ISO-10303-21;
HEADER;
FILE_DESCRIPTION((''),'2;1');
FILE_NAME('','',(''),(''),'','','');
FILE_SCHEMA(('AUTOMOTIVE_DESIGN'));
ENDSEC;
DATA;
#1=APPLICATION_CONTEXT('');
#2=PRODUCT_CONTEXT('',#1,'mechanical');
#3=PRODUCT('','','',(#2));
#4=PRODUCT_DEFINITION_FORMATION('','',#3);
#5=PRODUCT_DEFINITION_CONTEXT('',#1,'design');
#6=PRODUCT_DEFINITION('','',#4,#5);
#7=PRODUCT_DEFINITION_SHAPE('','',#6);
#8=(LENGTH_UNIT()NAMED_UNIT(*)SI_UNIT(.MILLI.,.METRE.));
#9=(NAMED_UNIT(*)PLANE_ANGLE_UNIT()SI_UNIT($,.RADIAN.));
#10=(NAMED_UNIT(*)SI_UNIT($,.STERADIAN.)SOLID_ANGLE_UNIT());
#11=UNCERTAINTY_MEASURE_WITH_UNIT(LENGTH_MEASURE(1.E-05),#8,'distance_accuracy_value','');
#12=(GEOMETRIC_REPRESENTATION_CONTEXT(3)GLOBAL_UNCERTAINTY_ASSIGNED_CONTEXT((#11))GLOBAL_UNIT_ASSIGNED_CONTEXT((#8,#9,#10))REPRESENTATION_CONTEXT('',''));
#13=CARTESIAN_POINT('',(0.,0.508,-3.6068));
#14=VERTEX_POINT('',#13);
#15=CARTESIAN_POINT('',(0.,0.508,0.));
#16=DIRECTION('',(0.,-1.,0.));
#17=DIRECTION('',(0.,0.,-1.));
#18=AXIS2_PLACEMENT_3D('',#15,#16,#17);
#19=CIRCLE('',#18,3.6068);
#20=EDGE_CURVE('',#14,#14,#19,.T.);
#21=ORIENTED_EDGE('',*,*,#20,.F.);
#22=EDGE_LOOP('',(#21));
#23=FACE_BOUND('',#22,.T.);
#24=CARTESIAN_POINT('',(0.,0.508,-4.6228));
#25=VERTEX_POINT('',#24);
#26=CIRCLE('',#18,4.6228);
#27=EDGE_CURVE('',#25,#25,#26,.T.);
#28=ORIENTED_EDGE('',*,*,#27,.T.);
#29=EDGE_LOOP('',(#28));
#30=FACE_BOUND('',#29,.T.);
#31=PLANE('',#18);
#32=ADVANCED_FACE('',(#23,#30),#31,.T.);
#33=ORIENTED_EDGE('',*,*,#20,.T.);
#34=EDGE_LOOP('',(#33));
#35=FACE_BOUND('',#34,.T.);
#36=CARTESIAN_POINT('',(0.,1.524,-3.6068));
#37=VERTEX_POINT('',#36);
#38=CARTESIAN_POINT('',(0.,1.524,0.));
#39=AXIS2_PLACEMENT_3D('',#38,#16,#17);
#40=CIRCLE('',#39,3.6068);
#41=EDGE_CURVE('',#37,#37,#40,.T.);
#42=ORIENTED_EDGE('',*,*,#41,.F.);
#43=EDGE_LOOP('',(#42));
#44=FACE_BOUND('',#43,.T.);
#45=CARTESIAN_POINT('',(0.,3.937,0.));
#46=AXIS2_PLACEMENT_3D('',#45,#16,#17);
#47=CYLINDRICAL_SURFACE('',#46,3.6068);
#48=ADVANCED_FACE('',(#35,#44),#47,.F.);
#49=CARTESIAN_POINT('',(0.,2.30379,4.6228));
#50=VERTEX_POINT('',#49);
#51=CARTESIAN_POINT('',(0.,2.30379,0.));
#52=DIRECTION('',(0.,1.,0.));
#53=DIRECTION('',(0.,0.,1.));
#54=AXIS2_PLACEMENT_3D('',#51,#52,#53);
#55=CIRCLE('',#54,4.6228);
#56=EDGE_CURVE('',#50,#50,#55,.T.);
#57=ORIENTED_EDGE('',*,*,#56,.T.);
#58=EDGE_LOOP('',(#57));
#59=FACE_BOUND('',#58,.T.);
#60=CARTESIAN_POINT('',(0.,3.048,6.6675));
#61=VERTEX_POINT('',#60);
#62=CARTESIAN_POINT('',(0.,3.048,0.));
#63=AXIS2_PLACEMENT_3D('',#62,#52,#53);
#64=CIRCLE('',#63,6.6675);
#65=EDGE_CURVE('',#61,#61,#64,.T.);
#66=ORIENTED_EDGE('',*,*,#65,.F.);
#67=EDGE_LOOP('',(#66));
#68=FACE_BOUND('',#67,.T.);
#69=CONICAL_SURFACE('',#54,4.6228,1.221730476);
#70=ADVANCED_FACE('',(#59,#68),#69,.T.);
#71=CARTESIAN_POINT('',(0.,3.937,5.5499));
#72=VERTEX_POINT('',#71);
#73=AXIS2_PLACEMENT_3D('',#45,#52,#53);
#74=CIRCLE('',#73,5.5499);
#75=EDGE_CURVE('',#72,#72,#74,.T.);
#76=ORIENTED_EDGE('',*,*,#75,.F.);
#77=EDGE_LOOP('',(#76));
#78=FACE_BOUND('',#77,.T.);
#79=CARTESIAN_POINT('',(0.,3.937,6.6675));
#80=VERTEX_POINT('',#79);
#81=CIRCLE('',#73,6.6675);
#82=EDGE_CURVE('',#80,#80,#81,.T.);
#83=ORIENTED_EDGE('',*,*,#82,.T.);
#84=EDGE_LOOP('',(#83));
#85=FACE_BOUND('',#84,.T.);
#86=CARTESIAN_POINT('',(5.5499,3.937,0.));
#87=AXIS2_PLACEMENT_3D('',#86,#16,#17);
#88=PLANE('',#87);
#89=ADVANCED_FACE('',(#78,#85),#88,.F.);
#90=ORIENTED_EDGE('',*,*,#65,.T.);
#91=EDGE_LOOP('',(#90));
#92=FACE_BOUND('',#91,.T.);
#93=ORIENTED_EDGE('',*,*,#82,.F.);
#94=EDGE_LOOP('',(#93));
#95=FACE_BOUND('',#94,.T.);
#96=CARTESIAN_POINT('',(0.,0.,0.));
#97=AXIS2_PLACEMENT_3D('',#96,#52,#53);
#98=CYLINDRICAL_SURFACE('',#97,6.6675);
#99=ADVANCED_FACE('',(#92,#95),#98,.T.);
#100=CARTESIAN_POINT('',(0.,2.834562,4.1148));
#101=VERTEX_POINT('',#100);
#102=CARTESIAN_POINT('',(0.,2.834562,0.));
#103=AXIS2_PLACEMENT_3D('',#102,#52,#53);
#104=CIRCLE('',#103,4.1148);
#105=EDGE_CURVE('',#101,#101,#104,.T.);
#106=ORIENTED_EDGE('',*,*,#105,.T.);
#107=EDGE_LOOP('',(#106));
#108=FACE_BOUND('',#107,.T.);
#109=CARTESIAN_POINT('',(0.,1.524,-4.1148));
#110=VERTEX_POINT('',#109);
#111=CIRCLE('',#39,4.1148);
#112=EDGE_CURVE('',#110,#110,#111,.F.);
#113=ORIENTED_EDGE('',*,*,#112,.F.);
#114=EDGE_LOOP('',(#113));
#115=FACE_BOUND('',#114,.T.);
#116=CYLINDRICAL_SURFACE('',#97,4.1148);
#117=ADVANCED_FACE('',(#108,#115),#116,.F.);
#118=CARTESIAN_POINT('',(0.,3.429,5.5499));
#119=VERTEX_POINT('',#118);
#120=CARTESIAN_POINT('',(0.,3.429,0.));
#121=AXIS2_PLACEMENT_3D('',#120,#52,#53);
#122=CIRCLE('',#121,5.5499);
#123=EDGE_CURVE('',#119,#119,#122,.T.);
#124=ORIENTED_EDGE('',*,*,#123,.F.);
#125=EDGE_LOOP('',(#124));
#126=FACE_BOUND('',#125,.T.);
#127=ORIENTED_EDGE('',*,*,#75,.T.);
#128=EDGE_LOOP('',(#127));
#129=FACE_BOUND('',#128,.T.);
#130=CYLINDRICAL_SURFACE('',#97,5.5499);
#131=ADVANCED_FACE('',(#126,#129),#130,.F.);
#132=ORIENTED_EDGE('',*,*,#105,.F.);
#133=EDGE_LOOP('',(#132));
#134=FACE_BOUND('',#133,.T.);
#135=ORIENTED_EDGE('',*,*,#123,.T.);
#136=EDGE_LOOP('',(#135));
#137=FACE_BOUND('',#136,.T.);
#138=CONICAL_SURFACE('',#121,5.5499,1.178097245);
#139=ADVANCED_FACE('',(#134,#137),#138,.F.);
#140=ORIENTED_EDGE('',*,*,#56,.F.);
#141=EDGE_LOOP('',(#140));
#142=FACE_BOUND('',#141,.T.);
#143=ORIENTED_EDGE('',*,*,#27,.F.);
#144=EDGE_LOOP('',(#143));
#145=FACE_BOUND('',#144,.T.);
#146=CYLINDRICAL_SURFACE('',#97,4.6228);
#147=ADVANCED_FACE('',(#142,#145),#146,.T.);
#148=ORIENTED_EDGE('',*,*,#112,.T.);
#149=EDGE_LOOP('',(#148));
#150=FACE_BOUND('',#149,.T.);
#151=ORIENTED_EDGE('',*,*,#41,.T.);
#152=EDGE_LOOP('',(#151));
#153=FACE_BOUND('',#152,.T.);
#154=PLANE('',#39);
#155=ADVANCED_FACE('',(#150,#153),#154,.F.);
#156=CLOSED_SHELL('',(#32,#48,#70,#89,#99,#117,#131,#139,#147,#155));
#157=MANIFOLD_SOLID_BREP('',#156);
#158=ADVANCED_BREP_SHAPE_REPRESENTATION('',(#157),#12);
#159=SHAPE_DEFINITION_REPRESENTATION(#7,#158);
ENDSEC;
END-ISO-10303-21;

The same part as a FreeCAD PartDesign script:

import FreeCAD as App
import Part
import Sketcher
from FreeCAD import Vector
Q = App.Units.Quantity


def add_polygon(sketch, points):
    """Adds a closed chain of lines whose ends are joined by coincident constraints."""
    first, n = sketch.GeometryCount, len(points)
    for a, b in zip(points, points[1:] + points[:1]):
        sketch.addGeometry(Part.LineSegment(App.Vector(*a, 0), App.Vector(*b, 0)), False)
    for i in range(n):
        sketch.addConstraint(Sketcher.Constraint("Coincident", first + i, 2, first + (i + 1) % n, 1))

doc = App.newDocument("Part")
body = doc.addObject("PartDesign::Body", "Body")

# Sketch on XY plane
sketch1 = doc.addObject("Sketcher::SketchObject", "Sketch")
body.addObject(sketch1)
sketch1.AttachmentSupport = (doc.XY_Plane, [""])
sketch1.MapMode = "FlatFace"
add_polygon(sketch1, [(4.6, 0), (4.6, 2.3), (6.7, 3), (6.7, 3.9), (5.5, 3.9), (5.5, 3.4), (4.1, 2.8), (4.1, 0)])  # lines 0-7
sketch1.addConstraint([
    Sketcher.Constraint("Vertical", 0),
    Sketcher.Constraint("Vertical", 2),
    Sketcher.Constraint("Horizontal", 3),
    Sketcher.Constraint("Vertical", 4),
    Sketcher.Constraint("Vertical", 6),
    Sketcher.Constraint("Horizontal", 7),
    Sketcher.Constraint("PointOnObject", 6, 2, -1),
    Sketcher.Constraint("Equal", 7, 4),
    Sketcher.Constraint("Angle", 1, Q("20 deg")),
    Sketcher.Constraint("DistanceX", 7, 1, 7, 2, Q("0.02 in")),
    Sketcher.Constraint("Angle", 5, Q("-157.5 deg")),
    Sketcher.Constraint("DistanceX", 3, 2, 3, 1, Q("0.044 in")),
    Sketcher.Constraint("DistanceY", 2, 1, 2, 2, Q("0.035 in")),
    Sketcher.Constraint("DistanceY", -1, 1, 1, 2, Q("0.12 in")),
    Sketcher.Constraint("DistanceX", -1, 1, 0, 2, Q("0.182 in")),
    Sketcher.Constraint("DistanceX", -1, 1, 1, 2, Q("0.2625 in")),
])
revolution = doc.addObject("PartDesign::Revolution", "Revolution")
body.addObject(revolution)
revolution.Profile = sketch1
revolution.ReferenceAxis = (sketch1, ["V_Axis"])
revolution.Angle = 360

# Sketch on XZ plane
sketch2 = doc.addObject("Sketcher::SketchObject", "Sketch001")
body.addObject(sketch2)
sketch2.AttachmentSupport = (doc.XZ_Plane, [""])
sketch2.MapMode = "FlatFace"
sketch2.addGeometry([
    Part.Circle(Vector(0, 0, 0), Vector(0, 0, 1), 4.6),
    Part.Circle(Vector(0, 0, 0), Vector(0, 0, 1), 4.1),
], False)
sketch2.addConstraint([
    Sketcher.Constraint("Coincident", 0, 3, -1, 1),
    Sketcher.Constraint("Coincident", 1, 3, -1, 1),
    Sketcher.Constraint("Diameter", 0, Q("0.364 in")),
    Sketcher.Constraint("Diameter", 1, Q("0.324 in")),
])
pocket1 = doc.addObject("PartDesign::Pocket", "Pocket")
body.addObject(pocket1)
pocket1.Profile = sketch2
pocket1.Length = Q("0.02 in")

# Sketch on XZ plane
sketch3 = doc.addObject("Sketcher::SketchObject", "Sketch002")
body.addObject(sketch3)
sketch3.AttachmentSupport = (doc.XZ_Plane, [""])
sketch3.MapMode = "FlatFace"
sketch3.AttachmentOffset = App.Placement(Vector(0, 0, -0.02 * 25.4), App.Rotation())
sketch3.addGeometry(Part.Circle(Vector(0, 0, 0), Vector(0, 0, 1), 4.1), False)
sketch3.addConstraint([
    Sketcher.Constraint("Coincident", 0, 3, -1, 1),
    Sketcher.Constraint("Diameter", 0, Q("0.324 in")),
])
pad1 = doc.addObject("PartDesign::Pad", "Pad")
body.addObject(pad1)
pad1.Profile = sketch3
pad1.Length = Q("0.04 in")
pad1.Reversed = True

# Sketch on XZ plane
sketch4 = doc.addObject("Sketcher::SketchObject", "Sketch003")
body.addObject(sketch4)
sketch4.AttachmentSupport = (doc.XZ_Plane, [""])
sketch4.MapMode = "FlatFace"
sketch4.AttachmentOffset = App.Placement(Vector(0, 0, -0.02 * 25.4), App.Rotation())
sketch4.addGeometry(Part.Circle(Vector(0, 0, 0), Vector(0, 0, 1), 3.6), False)
sketch4.addConstraint([
    Sketcher.Constraint("Coincident", 0, 3, -1, 1),
    Sketcher.Constraint("Diameter", 0, Q("0.284 in")),
])
pocket2 = doc.addObject("PartDesign::Pocket", "Pocket001")
body.addObject(pocket2)
pocket2.Profile = sketch4
pocket2.Type = "ThroughAll"

doc.recompute()
